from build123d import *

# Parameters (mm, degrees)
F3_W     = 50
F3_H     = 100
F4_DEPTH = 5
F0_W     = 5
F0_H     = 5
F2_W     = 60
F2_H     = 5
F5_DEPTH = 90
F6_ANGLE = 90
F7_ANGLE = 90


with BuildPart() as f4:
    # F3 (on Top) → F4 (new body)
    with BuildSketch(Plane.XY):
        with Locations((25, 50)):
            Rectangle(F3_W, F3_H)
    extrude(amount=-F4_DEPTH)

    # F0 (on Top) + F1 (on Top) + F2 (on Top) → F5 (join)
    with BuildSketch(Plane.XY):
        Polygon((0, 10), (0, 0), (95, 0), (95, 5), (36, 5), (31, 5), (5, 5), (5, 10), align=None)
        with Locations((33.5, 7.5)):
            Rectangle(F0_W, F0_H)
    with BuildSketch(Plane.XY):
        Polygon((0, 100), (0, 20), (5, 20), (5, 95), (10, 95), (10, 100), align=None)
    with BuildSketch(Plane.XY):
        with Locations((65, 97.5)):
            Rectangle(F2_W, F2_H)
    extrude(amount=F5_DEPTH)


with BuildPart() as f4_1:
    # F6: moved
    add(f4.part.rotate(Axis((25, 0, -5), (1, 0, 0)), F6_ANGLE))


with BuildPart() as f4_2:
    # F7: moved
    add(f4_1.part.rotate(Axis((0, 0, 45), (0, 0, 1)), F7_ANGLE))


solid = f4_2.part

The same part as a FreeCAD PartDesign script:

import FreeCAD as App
import Part
import Sketcher
Q = App.Units.Quantity

doc = App.newDocument("Part")
body = doc.addObject("PartDesign::Body", "Body")

# Sketch on XY plane
sketch1 = body.newObject("Sketcher::SketchObject", "Sketch")
sketch1.AttachmentSupport = (doc.getObject("XY_Plane"), [""])
sketch1.MapMode = "FlatFace"
sketch1.addGeometry(Part.LineSegment(App.Vector(0, 100, 0), App.Vector(0, 0, 0)), False)
sketch1.addGeometry(Part.LineSegment(App.Vector(0, 0, 0), App.Vector(50, 0, 0)), False)
sketch1.addGeometry(Part.LineSegment(App.Vector(50, 0, 0), App.Vector(50, 100, 0)), False)
sketch1.addGeometry(Part.LineSegment(App.Vector(50, 100, 0), App.Vector(0, 100, 0)), False)
sketch1.addConstraint(Sketcher.Constraint("Coincident", 0, 2, 1, 1))
sketch1.addConstraint(Sketcher.Constraint("Coincident", 1, 2, 2, 1))
sketch1.addConstraint(Sketcher.Constraint("Coincident", 2, 2, 3, 1))
sketch1.addConstraint(Sketcher.Constraint("Coincident", 3, 2, 0, 1))
sketch1.addConstraint(Sketcher.Constraint("Vertical", 0))
sketch1.addConstraint(Sketcher.Constraint("Horizontal", 1))
sketch1.addConstraint(Sketcher.Constraint("Vertical", 2))
sketch1.addConstraint(Sketcher.Constraint("Horizontal", 3))
sketch1.addConstraint(Sketcher.Constraint("Coincident", 0, 2, -1, 1))
sketch1.addConstraint(Sketcher.Constraint("DistanceX", 1, 1, 1, 2, Q("50 mm")))
sketch1.addConstraint(Sketcher.Constraint("DistanceY", 0, 2, 0, 1, Q("100 mm")))
pad1 = body.newObject("PartDesign::Pad", "Pad")
pad1.Profile = sketch1
pad1.Length = 5
pad1.Reversed = True

# Sketch on XY plane
sketch2 = body.newObject("Sketcher::SketchObject", "Sketch001")
sketch2.AttachmentSupport = (doc.getObject("XY_Plane"), [""])
sketch2.MapMode = "FlatFace"
sketch2.addGeometry(Part.LineSegment(App.Vector(0, 10, 0), App.Vector(0, 0, 0)), False)
sketch2.addGeometry(Part.LineSegment(App.Vector(0, 0, 0), App.Vector(95, 0, 0)), False)
sketch2.addGeometry(Part.LineSegment(App.Vector(95, 0, 0), App.Vector(95, 5, 0)), False)
sketch2.addGeometry(Part.LineSegment(App.Vector(95, 5, 0), App.Vector(36, 5, 0)), False)
sketch2.addGeometry(Part.LineSegment(App.Vector(36, 5, 0), App.Vector(36, 10, 0)), False)
sketch2.addGeometry(Part.LineSegment(App.Vector(36, 10, 0), App.Vector(31, 10, 0)), False)
sketch2.addGeometry(Part.LineSegment(App.Vector(31, 10, 0), App.Vector(31, 5, 0)), False)
sketch2.addGeometry(Part.LineSegment(App.Vector(31, 5, 0), App.Vector(5, 5, 0)), False)
sketch2.addGeometry(Part.LineSegment(App.Vector(5, 5, 0), App.Vector(5, 10, 0)), False)
sketch2.addGeometry(Part.LineSegment(App.Vector(5, 10, 0), App.Vector(0, 10, 0)), False)
sketch2.addGeometry(Part.LineSegment(App.Vector(0, 100, 0), App.Vector(0, 20, 0)), False)
sketch2.addGeometry(Part.LineSegment(App.Vector(0, 20, 0), App.Vector(5, 20, 0)), False)
sketch2.addGeometry(Part.LineSegment(App.Vector(5, 20, 0), App.Vector(5, 95, 0)), False)
sketch2.addGeometry(Part.LineSegment(App.Vector(5, 95, 0), App.Vector(10, 95, 0)), False)
sketch2.addGeometry(Part.LineSegment(App.Vector(10, 95, 0), App.Vector(10, 100, 0)), False)
sketch2.addGeometry(Part.LineSegment(App.Vector(10, 100, 0), App.Vector(0, 100, 0)), False)
sketch2.addGeometry(Part.LineSegment(App.Vector(35, 100, 0), App.Vector(35, 95, 0)), False)
sketch2.addGeometry(Part.LineSegment(App.Vector(35, 95, 0), App.Vector(95, 95, 0)), False)
sketch2.addGeometry(Part.LineSegment(App.Vector(95, 95, 0), App.Vector(95, 100, 0)), False)
sketch2.addGeometry(Part.LineSegment(App.Vector(95, 100, 0), App.Vector(35, 100, 0)), False)
sketch2.addConstraint(Sketcher.Constraint("Coincident", 0, 2, 1, 1))
sketch2.addConstraint(Sketcher.Constraint("Coincident", 1, 2, 2, 1))
sketch2.addConstraint(Sketcher.Constraint("Coincident", 2, 2, 3, 1))
sketch2.addConstraint(Sketcher.Constraint("Coincident", 3, 2, 4, 1))
sketch2.addConstraint(Sketcher.Constraint("Coincident", 4, 2, 5, 1))
sketch2.addConstraint(Sketcher.Constraint("Coincident", 5, 2, 6, 1))
sketch2.addConstraint(Sketcher.Constraint("Coincident", 6, 2, 7, 1))
sketch2.addConstraint(Sketcher.Constraint("Coincident", 7, 2, 8, 1))
sketch2.addConstraint(Sketcher.Constraint("Coincident", 8, 2, 9, 1))
sketch2.addConstraint(Sketcher.Constraint("Coincident", 9, 2, 0, 1))
sketch2.addConstraint(Sketcher.Constraint("Coincident", 10, 2, 11, 1))
sketch2.addConstraint(Sketcher.Constraint("Coincident", 11, 2, 12, 1))
sketch2.addConstraint(Sketcher.Constraint("Coincident", 12, 2, 13, 1))
sketch2.addConstraint(Sketcher.Constraint("Coincident", 13, 2, 14, 1))
sketch2.addConstraint(Sketcher.Constraint("Coincident", 14, 2, 15, 1))
sketch2.addConstraint(Sketcher.Constraint("Coincident", 15, 2, 10, 1))
sketch2.addConstraint(Sketcher.Constraint("Coincident", 16, 2, 17, 1))
sketch2.addConstraint(Sketcher.Constraint("Coincident", 17, 2, 18, 1))
sketch2.addConstraint(Sketcher.Constraint("Coincident", 18, 2, 19, 1))
sketch2.addConstraint(Sketcher.Constraint("Coincident", 19, 2, 16, 1))
sketch2.addConstraint(Sketcher.Constraint("Vertical", 0))
sketch2.addConstraint(Sketcher.Constraint("Horizontal", 1))
sketch2.addConstraint(Sketcher.Constraint("Vertical", 2))
sketch2.addConstraint(Sketcher.Constraint("Horizontal", 3))
sketch2.addConstraint(Sketcher.Constraint("Vertical", 4))
sketch2.addConstraint(Sketcher.Constraint("Horizontal", 5))
sketch2.addConstraint(Sketcher.Constraint("Vertical", 6))
sketch2.addConstraint(Sketcher.Constraint("Horizontal", 7))
sketch2.addConstraint(Sketcher.Constraint("Vertical", 8))
sketch2.addConstraint(Sketcher.Constraint("Horizontal", 9))
sketch2.addConstraint(Sketcher.Constraint("Vertical", 10))
sketch2.addConstraint(Sketcher.Constraint("Horizontal", 11))
sketch2.addConstraint(Sketcher.Constraint("Vertical", 12))
sketch2.addConstraint(Sketcher.Constraint("Horizontal", 13))
sketch2.addConstraint(Sketcher.Constraint("Vertical", 14))
sketch2.addConstraint(Sketcher.Constraint("Horizontal", 15))
sketch2.addConstraint(Sketcher.Constraint("Vertical", 16))
sketch2.addConstraint(Sketcher.Constraint("Horizontal", 17))
sketch2.addConstraint(Sketcher.Constraint("Vertical", 18))
sketch2.addConstraint(Sketcher.Constraint("Horizontal", 19))
sketch2.addConstraint(Sketcher.Constraint("Coincident", 0, 2, -1, 1))
sketch2.addConstraint(Sketcher.Constraint("PointOnObject", 10, 2, -2))
sketch2.addConstraint(Sketcher.Constraint("Horizontal", 3, 2, 6, 2))
sketch2.addConstraint(Sketcher.Constraint("Horizontal", 5, 2, 8, 2))
sketch2.addConstraint(Sketcher.Constraint("Horizontal", 13, 2, 16, 2))
sketch2.addConstraint(Sketcher.Constraint("Horizontal", 15, 2, 18, 2))
sketch2.addConstraint(Sketcher.Constraint("Vertical", 8, 2, 11, 2))
sketch2.addConstraint(Sketcher.Constraint("Vertical", 2, 2, 17, 2))
sketch2.addConstraint(Sketcher.Constraint("Equal", 5, 9))
sketch2.addConstraint(Sketcher.Constraint("Equal", 11, 13))
sketch2.addConstraint(Sketcher.Constraint("Equal", 15, 0))
sketch2.addConstraint(Sketcher.Constraint("Equal", 13, 2))
sketch2.addConstraint(Sketcher.Constraint("Equal", 8, 14))
sketch2.addConstraint(Sketcher.Constraint("DistanceX", 1, 1, 1, 2, Q("95 mm")))
sketch2.addConstraint(Sketcher.Constraint("DistanceX", 3, 2, 3, 1, Q("59 mm")))
sketch2.addConstraint(Sketcher.Constraint("DistanceX", 5, 2, 5, 1, Q("5 mm")))
sketch2.addConstraint(Sketcher.Constraint("DistanceX", 17, 1, 17, 2, Q("60 mm")))
sketch2.addConstraint(Sketcher.Constraint("DistanceY", 10, 2, 10, 1, Q("80 mm")))
sketch2.addConstraint(Sketcher.Constraint("DistanceY", -1, 1, 10, 2, Q("20 mm")))
pad2 = body.newObject("PartDesign::Pad", "Pad001")
pad2.Profile = sketch2
pad2.Length = 90
body2 = doc.addObject("PartDesign::Body", "Body001")
doc.recompute()

body.Placement = App.Placement(App.Vector(0, -5, -5), App.Rotation(App.Vector(1, 0, 0), 90))
boolean = body2.newObject("PartDesign::Boolean", "Boolean")
boolean.Type = "Fuse"
boolean.addObjects([body])
body3 = doc.addObject("PartDesign::Body", "Body002")
doc.recompute()

body2.Placement = App.Placement(App.Vector(0, 0, 0), App.Rotation(App.Vector(0, 0, 1), 90))
boolean2 = body3.newObject("PartDesign::Boolean", "Boolean001")
boolean2.Type = "Fuse"
boolean2.addObjects([body2])

doc.recompute()
